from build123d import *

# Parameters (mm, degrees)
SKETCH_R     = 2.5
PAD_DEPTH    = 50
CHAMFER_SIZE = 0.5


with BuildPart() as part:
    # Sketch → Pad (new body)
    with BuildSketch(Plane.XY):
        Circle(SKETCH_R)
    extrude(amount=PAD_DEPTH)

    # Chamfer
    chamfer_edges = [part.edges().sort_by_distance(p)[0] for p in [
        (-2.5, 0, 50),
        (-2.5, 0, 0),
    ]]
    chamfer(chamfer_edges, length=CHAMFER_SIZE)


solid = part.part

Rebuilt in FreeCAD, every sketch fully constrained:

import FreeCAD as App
import Part
import Sketcher

V = App.Vector
Q = App.Units.Quantity


def edges_at(feature, points):
    """Names of the edges that pass closest to the given points."""
    edges = feature.Shape.Edges
    near = lambda p: min(range(len(edges)), key=lambda i: edges[i].distToShape(Part.Vertex(*p))[0])
    return sorted({f"Edge{near(p) + 1}" for p in points})

doc = App.newDocument("Part")
params = doc.addObject("Spreadsheet::Sheet", "Params")
for row, (alias, value) in enumerate([
    ("sketch1_diameter", "5 mm"),
    ("pad1_length", "50 mm"),
    ("chamfer_size", "0.5 mm"),
], start=1):
    params.set(f"A{row}", alias)
    params.set(f"B{row}", "=" + value)
    params.setAlias(f"B{row}", alias)

body = doc.addObject("PartDesign::Body", "Body")

# Sketch on XY plane
sketch1 = body.newObject("Sketcher::SketchObject", "Sketch")
sketch1.AttachmentSupport = (doc.getObject("XY_Plane"), [""])
sketch1.MapMode = "FlatFace"
sketch1.addGeometry(Part.Circle(V(0, 0, 0), V(0, 0, 1), 2.5), False)
sketch1.addConstraint([
    Sketcher.Constraint("Coincident", 0, 3, -1, 1),
    Sketcher.Constraint("Diameter", 0, Q("5 mm")),
])
sketch1.setExpression("Constraints[1]", "Params.sketch1_diameter")
pad1 = body.newObject("PartDesign::Pad", "Pad")
pad1.Profile = sketch1
pad1.setExpression("Length", "Params.pad1_length")
doc.recompute()

chamfer = body.newObject("PartDesign::Chamfer", "Chamfer")
chamfer.Base = (pad1, edges_at(pad1, [(-2.5, 0, 50), (-2.5, 0, 0)]))
chamfer.setExpression("Size", "Params.chamfer_size")

doc.recompute()
